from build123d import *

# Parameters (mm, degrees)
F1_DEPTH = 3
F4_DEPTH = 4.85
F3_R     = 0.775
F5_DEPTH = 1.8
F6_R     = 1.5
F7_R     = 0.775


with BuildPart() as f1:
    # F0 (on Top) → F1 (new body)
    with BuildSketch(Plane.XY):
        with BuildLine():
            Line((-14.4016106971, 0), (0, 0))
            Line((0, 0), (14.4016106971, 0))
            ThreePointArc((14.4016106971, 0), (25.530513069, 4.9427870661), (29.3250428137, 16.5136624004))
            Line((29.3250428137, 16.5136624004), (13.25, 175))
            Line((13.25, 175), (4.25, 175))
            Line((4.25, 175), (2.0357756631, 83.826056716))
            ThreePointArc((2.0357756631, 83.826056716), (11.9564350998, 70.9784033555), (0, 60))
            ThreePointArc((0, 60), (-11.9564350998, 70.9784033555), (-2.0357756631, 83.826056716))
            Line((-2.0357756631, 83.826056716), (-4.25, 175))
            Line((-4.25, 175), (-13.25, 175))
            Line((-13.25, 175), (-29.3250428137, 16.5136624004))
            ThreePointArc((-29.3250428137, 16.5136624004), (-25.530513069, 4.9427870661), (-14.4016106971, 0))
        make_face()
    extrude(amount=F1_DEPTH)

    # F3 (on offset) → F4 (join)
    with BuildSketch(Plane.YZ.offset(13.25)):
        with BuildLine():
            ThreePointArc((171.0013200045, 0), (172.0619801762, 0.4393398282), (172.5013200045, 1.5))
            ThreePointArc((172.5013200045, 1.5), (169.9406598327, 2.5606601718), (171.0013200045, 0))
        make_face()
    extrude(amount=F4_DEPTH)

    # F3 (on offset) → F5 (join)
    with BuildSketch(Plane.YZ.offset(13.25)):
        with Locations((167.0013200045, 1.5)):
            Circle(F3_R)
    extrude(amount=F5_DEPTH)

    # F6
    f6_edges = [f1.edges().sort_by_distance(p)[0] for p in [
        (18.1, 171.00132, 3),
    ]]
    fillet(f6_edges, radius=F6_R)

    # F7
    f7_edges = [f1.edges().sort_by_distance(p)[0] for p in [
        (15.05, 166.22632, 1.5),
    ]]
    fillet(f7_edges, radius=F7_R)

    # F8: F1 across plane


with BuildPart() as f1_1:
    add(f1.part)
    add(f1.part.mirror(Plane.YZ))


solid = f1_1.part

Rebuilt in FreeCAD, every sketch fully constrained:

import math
import FreeCAD as App
import Part
import Sketcher


def edges_at(feature, points):
    """Names of the edges that pass closest to the given points."""
    edges = feature.Shape.Edges
    near = lambda p: min(range(len(edges)), key=lambda i: edges[i].distToShape(Part.Vertex(*p))[0])
    return sorted({f"Edge{near(p) + 1}" for p in points})

doc = App.newDocument("Part")
body = doc.addObject("PartDesign::Body", "Body")

# Sketch on XY plane
sketch1 = doc.addObject("Sketcher::SketchObject", "Sketch")
body.addObject(sketch1)
sketch1.AttachmentSupport = (doc.XY_Plane, [""])
sketch1.MapMode = "FlatFace"
sketch1.addGeometry([
    Part.LineSegment(App.Vector(-14, 0, 0), App.Vector(14, 0, 0)),  # 0
    Part.ArcOfCircle(Part.Circle(App.Vector(14, 15, 0), App.Vector(0, 0, 1), 15), math.radians(-90), math.radians(6)),  # 1
    Part.LineSegment(App.Vector(29, 17, 0), App.Vector(13, 175, 0)),  # 2
    Part.LineSegment(App.Vector(13, 175, 0), App.Vector(4, 175, 0)),  # 3
    Part.LineSegment(App.Vector(4, 175, 0), App.Vector(2, 84, 0)),  # 4
    Part.ArcOfCircle(Part.Circle(App.Vector(0, 72, 0), App.Vector(0, 0, 1), 12), math.radians(-90), math.radians(80)),  # 5
    Part.ArcOfCircle(Part.Circle(App.Vector(0, 72, 0), App.Vector(0, 0, 1), 12), math.radians(100), math.radians(270)),  # 6
    Part.LineSegment(App.Vector(-2, 84, 0), App.Vector(-4, 175, 0)),  # 7
    Part.LineSegment(App.Vector(-4, 175, 0), App.Vector(-13, 175, 0)),  # 8
    Part.LineSegment(App.Vector(-13, 175, 0), App.Vector(-29, 17, 0)),  # 9
    Part.ArcOfCircle(Part.Circle(App.Vector(-14, 15, 0), App.Vector(0, 0, 1), 15), math.radians(174), math.radians(270)),  # 10
], False)
sketch1.addConstraint([
    Sketcher.Constraint("Tangent", 0, 2, 1, 1),
    Sketcher.Constraint("Tangent", 1, 2, 2, 1),
    Sketcher.Constraint("Coincident", 2, 2, 3, 1),
    Sketcher.Constraint("Coincident", 3, 2, 4, 1),
    Sketcher.Constraint("Coincident", 4, 2, 5, 2),
    Sketcher.Constraint("Tangent", 5, 1, 6, 2),
    Sketcher.Constraint("Coincident", 6, 1, 7, 1),
    Sketcher.Constraint("Coincident", 7, 2, 8, 1),
    Sketcher.Constraint("Coincident", 8, 2, 9, 1),
    Sketcher.Constraint("Tangent", 9, 2, 10, 1),
    Sketcher.Constraint("Tangent", 10, 2, 0, 1),
    Sketcher.Constraint("Horizontal", 0),
    Sketcher.Constraint("Horizontal", 3),
    Sketcher.Constraint("Horizontal", 8),
    Sketcher.Constraint("Equal", 5, 6),
    Sketcher.Constraint("Equal", 1, 10),
    Sketcher.Constraint("Symmetric", 0, 2, 10, 2, -1, 1),
    Sketcher.Constraint("Symmetric", 4, 2, 6, 1, -2),
    Sketcher.Constraint("Symmetric", 3, 2, 7, 2, -2),
    Sketcher.Constraint("PointOnObject", 5, 1, -2),
    Sketcher.Constraint("Horizontal", 1, 2, 9, 2),
    Sketcher.Constraint("Radius", 1, 15.0),
    Sketcher.Constraint("Radius", 5, 12.0),
    Sketcher.Constraint("DistanceX", 3, 2, 3, 1, 9.0),
    Sketcher.Constraint("DistanceY", -1, 1, 5, 3, 72.0),
    Sketcher.Constraint("DistanceY", -1, 1, 2, 2, 175.0),
    Sketcher.Constraint("DistanceX", 7, 2, 3, 2, 8.5),
    Sketcher.Constraint("DistanceX", 0, 1, 0, 2, 28.803221),
    Sketcher.Constraint("DistanceX", 6, 1, 4, 2, 4.071551),
])
pad1 = doc.addObject("PartDesign::Pad", "Pad")
body.addObject(pad1)
pad1.Profile = sketch1
pad1.Length = 3

# Sketch on YZ plane
sketch2 = doc.addObject("Sketcher::SketchObject", "Sketch001")
body.addObject(sketch2)
sketch2.AttachmentSupport = (doc.YZ_Plane, [""])
sketch2.MapMode = "FlatFace"
sketch2.AttachmentOffset = App.Placement(App.Vector(0, 0, 13.25), App.Rotation())
sketch2.addGeometry([
    Part.ArcOfCircle(Part.Circle(App.Vector(171, 1.5, 0), App.Vector(0, 0, 1), 1.5), math.radians(-90), math.radians(0)),
    Part.ArcOfCircle(Part.Circle(App.Vector(171, 1.5, 0), App.Vector(0, 0, 1), 1.5), math.radians(0), math.radians(270)),
], False)
sketch2.addConstraint([
    Sketcher.Constraint("Tangent", 0, 1, 1, 2),
    Sketcher.Constraint("Coincident", 1, 1, 0, 2),
    Sketcher.Constraint("PointOnObject", 0, 1, -1),
    Sketcher.Constraint("Horizontal", 0, 3, 1, 1),
    Sketcher.Constraint("Vertical", 1, 3, 0, 1),
    Sketcher.Constraint("Radius", 0, 1.5),
    Sketcher.Constraint("DistanceX", -1, 1, 0, 3, 171.00132),
])
pad2 = doc.addObject("PartDesign::Pad", "Pad001")
body.addObject(pad2)
pad2.Profile = sketch2
pad2.Length = 4.85

# Sketch on YZ plane
sketch3 = doc.addObject("Sketcher::SketchObject", "Sketch002")
body.addObject(sketch3)
sketch3.AttachmentSupport = (doc.YZ_Plane, [""])
sketch3.MapMode = "FlatFace"
sketch3.AttachmentOffset = App.Placement(App.Vector(0, 0, 13.25), App.Rotation())
sketch3.addGeometry(Part.Circle(App.Vector(167, 1.5, 0), App.Vector(0, 0, 1), 0.8), False)
sketch3.addConstraint([
    Sketcher.Constraint("Diameter", 0, 1.55),
    Sketcher.Constraint("DistanceY", -1, 1, 0, 3, 1.5),
    Sketcher.Constraint("DistanceX", -1, 1, 0, 3, 167.00132),
])
pad3 = doc.addObject("PartDesign::Pad", "Pad002")
body.addObject(pad3)
pad3.Profile = sketch3
pad3.Length = 1.8
doc.recompute()

fillet = doc.addObject("PartDesign::Fillet", "Fillet")
body.addObject(fillet)
fillet.Base = (pad3, edges_at(pad3, [(18.1, 169.941, 2.561)]))
fillet.Radius = 1.5
doc.recompute()

fillet2 = doc.addObject("PartDesign::Fillet", "Fillet001")
body.addObject(fillet2)
fillet2.Base = (fillet, edges_at(fillet, [(15.05, 166.226, 1.5)]))
fillet2.Radius = 0.775
body2 = doc.addObject("PartDesign::Body", "Body001")
doc.recompute()

body2.BaseFeature = body
doc.recompute()

mirroring = doc.addObject("Part::Mirroring", "Mirroring")
mirroring.Source = body
mirroring.Base = App.Vector(0, 0, 0)
mirroring.Normal = App.Vector(1, 0, 0)
body3 = doc.addObject("PartDesign::Body", "Body002")
body3.BaseFeature = mirroring
boolean = doc.addObject("PartDesign::Boolean", "Boolean")
body2.addObject(boolean)
boolean.Type = "Fuse"
boolean.addObjects([body3])
doc.recompute()
mirroring.Visibility = False

doc.recompute()
